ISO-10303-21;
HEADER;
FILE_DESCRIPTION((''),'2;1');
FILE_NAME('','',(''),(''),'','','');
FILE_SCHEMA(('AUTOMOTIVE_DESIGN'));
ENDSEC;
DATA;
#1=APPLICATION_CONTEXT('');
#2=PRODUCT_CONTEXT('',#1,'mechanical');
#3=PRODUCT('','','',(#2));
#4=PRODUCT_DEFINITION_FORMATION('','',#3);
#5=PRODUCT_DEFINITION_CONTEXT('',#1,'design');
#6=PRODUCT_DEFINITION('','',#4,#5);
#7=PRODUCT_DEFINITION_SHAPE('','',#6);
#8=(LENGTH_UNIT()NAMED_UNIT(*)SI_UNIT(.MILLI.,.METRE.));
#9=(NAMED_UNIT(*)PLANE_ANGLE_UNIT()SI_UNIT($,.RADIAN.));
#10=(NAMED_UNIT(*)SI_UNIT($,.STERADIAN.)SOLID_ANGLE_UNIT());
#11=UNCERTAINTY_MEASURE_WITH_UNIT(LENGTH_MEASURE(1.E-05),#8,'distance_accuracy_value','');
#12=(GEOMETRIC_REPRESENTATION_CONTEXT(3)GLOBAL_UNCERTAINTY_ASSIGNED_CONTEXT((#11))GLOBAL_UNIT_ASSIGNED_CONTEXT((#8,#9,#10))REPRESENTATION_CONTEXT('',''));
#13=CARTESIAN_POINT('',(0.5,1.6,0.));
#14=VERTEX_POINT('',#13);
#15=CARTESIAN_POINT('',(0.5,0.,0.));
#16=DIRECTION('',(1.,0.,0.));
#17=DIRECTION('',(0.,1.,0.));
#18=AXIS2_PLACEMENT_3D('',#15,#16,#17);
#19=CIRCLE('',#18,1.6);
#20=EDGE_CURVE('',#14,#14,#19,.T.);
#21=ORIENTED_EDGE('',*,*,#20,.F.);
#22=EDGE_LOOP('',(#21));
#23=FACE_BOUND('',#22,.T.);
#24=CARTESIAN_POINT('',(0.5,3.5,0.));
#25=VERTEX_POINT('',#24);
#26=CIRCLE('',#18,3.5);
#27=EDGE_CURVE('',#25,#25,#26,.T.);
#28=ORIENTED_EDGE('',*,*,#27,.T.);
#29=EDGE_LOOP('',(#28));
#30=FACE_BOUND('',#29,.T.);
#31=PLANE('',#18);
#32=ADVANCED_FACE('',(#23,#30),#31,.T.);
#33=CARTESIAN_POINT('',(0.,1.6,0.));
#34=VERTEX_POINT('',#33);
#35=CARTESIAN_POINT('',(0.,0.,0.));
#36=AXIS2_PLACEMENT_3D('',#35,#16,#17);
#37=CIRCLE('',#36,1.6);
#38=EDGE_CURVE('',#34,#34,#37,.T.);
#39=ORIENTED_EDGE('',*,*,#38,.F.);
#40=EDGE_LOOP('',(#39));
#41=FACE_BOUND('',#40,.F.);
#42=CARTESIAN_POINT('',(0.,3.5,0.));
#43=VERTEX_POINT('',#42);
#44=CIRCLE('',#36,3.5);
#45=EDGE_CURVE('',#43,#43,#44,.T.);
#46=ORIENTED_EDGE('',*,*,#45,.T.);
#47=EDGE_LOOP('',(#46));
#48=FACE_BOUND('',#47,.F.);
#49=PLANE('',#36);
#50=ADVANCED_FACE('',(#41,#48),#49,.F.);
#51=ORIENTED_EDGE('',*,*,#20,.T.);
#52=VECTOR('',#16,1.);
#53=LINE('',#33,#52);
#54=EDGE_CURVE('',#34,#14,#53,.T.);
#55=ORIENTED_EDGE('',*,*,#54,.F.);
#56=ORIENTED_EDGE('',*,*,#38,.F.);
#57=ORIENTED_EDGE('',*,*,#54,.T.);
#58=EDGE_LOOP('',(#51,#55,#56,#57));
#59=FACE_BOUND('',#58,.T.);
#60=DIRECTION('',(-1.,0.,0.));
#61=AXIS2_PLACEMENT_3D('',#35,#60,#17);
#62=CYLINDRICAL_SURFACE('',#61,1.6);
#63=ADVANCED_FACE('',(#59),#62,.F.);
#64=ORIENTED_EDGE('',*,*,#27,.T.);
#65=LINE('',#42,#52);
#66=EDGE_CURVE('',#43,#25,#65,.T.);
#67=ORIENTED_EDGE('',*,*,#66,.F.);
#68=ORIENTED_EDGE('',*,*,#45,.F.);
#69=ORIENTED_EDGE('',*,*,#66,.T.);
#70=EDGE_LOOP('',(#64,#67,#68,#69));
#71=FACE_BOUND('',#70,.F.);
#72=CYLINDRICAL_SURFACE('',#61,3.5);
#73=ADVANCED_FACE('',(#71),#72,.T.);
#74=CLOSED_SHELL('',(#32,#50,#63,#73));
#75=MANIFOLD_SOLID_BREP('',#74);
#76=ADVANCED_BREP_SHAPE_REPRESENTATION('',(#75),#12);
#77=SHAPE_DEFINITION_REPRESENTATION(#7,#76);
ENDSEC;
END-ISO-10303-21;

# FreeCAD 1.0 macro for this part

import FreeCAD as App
import Part
import Sketcher

doc = App.newDocument("Part")
body = doc.addObject("PartDesign::Body", "Body")

sketch1 = body.newObject("Sketcher::SketchObject", "Sketch")
sketch1.AttachmentSupport = (doc.getObject("YZ_Plane"), [""])
sketch1.MapMode = "FlatFace"
sketch1.addGeometry([
    Part.Circle(App.Vector(0, 0, 0), App.Vector(0, 0, 1), 3.5),
    Part.Circle(App.Vector(0, 0, 0), App.Vector(0, 0, 1), 1.6),
], False)
sketch1.addConstraint([
    Sketcher.Constraint("Coincident", 0, 3, -1, 1),
    Sketcher.Constraint("Coincident", 1, 3, -1, 1),
    Sketcher.Constraint("Diameter", 0, 7.0),
    Sketcher.Constraint("Diameter", 1, 3.2),
])
pad1 = body.newObject("PartDesign::Pad", "Pad")
pad1.Profile = sketch1
pad1.Length = 0.5

doc.recompute()
